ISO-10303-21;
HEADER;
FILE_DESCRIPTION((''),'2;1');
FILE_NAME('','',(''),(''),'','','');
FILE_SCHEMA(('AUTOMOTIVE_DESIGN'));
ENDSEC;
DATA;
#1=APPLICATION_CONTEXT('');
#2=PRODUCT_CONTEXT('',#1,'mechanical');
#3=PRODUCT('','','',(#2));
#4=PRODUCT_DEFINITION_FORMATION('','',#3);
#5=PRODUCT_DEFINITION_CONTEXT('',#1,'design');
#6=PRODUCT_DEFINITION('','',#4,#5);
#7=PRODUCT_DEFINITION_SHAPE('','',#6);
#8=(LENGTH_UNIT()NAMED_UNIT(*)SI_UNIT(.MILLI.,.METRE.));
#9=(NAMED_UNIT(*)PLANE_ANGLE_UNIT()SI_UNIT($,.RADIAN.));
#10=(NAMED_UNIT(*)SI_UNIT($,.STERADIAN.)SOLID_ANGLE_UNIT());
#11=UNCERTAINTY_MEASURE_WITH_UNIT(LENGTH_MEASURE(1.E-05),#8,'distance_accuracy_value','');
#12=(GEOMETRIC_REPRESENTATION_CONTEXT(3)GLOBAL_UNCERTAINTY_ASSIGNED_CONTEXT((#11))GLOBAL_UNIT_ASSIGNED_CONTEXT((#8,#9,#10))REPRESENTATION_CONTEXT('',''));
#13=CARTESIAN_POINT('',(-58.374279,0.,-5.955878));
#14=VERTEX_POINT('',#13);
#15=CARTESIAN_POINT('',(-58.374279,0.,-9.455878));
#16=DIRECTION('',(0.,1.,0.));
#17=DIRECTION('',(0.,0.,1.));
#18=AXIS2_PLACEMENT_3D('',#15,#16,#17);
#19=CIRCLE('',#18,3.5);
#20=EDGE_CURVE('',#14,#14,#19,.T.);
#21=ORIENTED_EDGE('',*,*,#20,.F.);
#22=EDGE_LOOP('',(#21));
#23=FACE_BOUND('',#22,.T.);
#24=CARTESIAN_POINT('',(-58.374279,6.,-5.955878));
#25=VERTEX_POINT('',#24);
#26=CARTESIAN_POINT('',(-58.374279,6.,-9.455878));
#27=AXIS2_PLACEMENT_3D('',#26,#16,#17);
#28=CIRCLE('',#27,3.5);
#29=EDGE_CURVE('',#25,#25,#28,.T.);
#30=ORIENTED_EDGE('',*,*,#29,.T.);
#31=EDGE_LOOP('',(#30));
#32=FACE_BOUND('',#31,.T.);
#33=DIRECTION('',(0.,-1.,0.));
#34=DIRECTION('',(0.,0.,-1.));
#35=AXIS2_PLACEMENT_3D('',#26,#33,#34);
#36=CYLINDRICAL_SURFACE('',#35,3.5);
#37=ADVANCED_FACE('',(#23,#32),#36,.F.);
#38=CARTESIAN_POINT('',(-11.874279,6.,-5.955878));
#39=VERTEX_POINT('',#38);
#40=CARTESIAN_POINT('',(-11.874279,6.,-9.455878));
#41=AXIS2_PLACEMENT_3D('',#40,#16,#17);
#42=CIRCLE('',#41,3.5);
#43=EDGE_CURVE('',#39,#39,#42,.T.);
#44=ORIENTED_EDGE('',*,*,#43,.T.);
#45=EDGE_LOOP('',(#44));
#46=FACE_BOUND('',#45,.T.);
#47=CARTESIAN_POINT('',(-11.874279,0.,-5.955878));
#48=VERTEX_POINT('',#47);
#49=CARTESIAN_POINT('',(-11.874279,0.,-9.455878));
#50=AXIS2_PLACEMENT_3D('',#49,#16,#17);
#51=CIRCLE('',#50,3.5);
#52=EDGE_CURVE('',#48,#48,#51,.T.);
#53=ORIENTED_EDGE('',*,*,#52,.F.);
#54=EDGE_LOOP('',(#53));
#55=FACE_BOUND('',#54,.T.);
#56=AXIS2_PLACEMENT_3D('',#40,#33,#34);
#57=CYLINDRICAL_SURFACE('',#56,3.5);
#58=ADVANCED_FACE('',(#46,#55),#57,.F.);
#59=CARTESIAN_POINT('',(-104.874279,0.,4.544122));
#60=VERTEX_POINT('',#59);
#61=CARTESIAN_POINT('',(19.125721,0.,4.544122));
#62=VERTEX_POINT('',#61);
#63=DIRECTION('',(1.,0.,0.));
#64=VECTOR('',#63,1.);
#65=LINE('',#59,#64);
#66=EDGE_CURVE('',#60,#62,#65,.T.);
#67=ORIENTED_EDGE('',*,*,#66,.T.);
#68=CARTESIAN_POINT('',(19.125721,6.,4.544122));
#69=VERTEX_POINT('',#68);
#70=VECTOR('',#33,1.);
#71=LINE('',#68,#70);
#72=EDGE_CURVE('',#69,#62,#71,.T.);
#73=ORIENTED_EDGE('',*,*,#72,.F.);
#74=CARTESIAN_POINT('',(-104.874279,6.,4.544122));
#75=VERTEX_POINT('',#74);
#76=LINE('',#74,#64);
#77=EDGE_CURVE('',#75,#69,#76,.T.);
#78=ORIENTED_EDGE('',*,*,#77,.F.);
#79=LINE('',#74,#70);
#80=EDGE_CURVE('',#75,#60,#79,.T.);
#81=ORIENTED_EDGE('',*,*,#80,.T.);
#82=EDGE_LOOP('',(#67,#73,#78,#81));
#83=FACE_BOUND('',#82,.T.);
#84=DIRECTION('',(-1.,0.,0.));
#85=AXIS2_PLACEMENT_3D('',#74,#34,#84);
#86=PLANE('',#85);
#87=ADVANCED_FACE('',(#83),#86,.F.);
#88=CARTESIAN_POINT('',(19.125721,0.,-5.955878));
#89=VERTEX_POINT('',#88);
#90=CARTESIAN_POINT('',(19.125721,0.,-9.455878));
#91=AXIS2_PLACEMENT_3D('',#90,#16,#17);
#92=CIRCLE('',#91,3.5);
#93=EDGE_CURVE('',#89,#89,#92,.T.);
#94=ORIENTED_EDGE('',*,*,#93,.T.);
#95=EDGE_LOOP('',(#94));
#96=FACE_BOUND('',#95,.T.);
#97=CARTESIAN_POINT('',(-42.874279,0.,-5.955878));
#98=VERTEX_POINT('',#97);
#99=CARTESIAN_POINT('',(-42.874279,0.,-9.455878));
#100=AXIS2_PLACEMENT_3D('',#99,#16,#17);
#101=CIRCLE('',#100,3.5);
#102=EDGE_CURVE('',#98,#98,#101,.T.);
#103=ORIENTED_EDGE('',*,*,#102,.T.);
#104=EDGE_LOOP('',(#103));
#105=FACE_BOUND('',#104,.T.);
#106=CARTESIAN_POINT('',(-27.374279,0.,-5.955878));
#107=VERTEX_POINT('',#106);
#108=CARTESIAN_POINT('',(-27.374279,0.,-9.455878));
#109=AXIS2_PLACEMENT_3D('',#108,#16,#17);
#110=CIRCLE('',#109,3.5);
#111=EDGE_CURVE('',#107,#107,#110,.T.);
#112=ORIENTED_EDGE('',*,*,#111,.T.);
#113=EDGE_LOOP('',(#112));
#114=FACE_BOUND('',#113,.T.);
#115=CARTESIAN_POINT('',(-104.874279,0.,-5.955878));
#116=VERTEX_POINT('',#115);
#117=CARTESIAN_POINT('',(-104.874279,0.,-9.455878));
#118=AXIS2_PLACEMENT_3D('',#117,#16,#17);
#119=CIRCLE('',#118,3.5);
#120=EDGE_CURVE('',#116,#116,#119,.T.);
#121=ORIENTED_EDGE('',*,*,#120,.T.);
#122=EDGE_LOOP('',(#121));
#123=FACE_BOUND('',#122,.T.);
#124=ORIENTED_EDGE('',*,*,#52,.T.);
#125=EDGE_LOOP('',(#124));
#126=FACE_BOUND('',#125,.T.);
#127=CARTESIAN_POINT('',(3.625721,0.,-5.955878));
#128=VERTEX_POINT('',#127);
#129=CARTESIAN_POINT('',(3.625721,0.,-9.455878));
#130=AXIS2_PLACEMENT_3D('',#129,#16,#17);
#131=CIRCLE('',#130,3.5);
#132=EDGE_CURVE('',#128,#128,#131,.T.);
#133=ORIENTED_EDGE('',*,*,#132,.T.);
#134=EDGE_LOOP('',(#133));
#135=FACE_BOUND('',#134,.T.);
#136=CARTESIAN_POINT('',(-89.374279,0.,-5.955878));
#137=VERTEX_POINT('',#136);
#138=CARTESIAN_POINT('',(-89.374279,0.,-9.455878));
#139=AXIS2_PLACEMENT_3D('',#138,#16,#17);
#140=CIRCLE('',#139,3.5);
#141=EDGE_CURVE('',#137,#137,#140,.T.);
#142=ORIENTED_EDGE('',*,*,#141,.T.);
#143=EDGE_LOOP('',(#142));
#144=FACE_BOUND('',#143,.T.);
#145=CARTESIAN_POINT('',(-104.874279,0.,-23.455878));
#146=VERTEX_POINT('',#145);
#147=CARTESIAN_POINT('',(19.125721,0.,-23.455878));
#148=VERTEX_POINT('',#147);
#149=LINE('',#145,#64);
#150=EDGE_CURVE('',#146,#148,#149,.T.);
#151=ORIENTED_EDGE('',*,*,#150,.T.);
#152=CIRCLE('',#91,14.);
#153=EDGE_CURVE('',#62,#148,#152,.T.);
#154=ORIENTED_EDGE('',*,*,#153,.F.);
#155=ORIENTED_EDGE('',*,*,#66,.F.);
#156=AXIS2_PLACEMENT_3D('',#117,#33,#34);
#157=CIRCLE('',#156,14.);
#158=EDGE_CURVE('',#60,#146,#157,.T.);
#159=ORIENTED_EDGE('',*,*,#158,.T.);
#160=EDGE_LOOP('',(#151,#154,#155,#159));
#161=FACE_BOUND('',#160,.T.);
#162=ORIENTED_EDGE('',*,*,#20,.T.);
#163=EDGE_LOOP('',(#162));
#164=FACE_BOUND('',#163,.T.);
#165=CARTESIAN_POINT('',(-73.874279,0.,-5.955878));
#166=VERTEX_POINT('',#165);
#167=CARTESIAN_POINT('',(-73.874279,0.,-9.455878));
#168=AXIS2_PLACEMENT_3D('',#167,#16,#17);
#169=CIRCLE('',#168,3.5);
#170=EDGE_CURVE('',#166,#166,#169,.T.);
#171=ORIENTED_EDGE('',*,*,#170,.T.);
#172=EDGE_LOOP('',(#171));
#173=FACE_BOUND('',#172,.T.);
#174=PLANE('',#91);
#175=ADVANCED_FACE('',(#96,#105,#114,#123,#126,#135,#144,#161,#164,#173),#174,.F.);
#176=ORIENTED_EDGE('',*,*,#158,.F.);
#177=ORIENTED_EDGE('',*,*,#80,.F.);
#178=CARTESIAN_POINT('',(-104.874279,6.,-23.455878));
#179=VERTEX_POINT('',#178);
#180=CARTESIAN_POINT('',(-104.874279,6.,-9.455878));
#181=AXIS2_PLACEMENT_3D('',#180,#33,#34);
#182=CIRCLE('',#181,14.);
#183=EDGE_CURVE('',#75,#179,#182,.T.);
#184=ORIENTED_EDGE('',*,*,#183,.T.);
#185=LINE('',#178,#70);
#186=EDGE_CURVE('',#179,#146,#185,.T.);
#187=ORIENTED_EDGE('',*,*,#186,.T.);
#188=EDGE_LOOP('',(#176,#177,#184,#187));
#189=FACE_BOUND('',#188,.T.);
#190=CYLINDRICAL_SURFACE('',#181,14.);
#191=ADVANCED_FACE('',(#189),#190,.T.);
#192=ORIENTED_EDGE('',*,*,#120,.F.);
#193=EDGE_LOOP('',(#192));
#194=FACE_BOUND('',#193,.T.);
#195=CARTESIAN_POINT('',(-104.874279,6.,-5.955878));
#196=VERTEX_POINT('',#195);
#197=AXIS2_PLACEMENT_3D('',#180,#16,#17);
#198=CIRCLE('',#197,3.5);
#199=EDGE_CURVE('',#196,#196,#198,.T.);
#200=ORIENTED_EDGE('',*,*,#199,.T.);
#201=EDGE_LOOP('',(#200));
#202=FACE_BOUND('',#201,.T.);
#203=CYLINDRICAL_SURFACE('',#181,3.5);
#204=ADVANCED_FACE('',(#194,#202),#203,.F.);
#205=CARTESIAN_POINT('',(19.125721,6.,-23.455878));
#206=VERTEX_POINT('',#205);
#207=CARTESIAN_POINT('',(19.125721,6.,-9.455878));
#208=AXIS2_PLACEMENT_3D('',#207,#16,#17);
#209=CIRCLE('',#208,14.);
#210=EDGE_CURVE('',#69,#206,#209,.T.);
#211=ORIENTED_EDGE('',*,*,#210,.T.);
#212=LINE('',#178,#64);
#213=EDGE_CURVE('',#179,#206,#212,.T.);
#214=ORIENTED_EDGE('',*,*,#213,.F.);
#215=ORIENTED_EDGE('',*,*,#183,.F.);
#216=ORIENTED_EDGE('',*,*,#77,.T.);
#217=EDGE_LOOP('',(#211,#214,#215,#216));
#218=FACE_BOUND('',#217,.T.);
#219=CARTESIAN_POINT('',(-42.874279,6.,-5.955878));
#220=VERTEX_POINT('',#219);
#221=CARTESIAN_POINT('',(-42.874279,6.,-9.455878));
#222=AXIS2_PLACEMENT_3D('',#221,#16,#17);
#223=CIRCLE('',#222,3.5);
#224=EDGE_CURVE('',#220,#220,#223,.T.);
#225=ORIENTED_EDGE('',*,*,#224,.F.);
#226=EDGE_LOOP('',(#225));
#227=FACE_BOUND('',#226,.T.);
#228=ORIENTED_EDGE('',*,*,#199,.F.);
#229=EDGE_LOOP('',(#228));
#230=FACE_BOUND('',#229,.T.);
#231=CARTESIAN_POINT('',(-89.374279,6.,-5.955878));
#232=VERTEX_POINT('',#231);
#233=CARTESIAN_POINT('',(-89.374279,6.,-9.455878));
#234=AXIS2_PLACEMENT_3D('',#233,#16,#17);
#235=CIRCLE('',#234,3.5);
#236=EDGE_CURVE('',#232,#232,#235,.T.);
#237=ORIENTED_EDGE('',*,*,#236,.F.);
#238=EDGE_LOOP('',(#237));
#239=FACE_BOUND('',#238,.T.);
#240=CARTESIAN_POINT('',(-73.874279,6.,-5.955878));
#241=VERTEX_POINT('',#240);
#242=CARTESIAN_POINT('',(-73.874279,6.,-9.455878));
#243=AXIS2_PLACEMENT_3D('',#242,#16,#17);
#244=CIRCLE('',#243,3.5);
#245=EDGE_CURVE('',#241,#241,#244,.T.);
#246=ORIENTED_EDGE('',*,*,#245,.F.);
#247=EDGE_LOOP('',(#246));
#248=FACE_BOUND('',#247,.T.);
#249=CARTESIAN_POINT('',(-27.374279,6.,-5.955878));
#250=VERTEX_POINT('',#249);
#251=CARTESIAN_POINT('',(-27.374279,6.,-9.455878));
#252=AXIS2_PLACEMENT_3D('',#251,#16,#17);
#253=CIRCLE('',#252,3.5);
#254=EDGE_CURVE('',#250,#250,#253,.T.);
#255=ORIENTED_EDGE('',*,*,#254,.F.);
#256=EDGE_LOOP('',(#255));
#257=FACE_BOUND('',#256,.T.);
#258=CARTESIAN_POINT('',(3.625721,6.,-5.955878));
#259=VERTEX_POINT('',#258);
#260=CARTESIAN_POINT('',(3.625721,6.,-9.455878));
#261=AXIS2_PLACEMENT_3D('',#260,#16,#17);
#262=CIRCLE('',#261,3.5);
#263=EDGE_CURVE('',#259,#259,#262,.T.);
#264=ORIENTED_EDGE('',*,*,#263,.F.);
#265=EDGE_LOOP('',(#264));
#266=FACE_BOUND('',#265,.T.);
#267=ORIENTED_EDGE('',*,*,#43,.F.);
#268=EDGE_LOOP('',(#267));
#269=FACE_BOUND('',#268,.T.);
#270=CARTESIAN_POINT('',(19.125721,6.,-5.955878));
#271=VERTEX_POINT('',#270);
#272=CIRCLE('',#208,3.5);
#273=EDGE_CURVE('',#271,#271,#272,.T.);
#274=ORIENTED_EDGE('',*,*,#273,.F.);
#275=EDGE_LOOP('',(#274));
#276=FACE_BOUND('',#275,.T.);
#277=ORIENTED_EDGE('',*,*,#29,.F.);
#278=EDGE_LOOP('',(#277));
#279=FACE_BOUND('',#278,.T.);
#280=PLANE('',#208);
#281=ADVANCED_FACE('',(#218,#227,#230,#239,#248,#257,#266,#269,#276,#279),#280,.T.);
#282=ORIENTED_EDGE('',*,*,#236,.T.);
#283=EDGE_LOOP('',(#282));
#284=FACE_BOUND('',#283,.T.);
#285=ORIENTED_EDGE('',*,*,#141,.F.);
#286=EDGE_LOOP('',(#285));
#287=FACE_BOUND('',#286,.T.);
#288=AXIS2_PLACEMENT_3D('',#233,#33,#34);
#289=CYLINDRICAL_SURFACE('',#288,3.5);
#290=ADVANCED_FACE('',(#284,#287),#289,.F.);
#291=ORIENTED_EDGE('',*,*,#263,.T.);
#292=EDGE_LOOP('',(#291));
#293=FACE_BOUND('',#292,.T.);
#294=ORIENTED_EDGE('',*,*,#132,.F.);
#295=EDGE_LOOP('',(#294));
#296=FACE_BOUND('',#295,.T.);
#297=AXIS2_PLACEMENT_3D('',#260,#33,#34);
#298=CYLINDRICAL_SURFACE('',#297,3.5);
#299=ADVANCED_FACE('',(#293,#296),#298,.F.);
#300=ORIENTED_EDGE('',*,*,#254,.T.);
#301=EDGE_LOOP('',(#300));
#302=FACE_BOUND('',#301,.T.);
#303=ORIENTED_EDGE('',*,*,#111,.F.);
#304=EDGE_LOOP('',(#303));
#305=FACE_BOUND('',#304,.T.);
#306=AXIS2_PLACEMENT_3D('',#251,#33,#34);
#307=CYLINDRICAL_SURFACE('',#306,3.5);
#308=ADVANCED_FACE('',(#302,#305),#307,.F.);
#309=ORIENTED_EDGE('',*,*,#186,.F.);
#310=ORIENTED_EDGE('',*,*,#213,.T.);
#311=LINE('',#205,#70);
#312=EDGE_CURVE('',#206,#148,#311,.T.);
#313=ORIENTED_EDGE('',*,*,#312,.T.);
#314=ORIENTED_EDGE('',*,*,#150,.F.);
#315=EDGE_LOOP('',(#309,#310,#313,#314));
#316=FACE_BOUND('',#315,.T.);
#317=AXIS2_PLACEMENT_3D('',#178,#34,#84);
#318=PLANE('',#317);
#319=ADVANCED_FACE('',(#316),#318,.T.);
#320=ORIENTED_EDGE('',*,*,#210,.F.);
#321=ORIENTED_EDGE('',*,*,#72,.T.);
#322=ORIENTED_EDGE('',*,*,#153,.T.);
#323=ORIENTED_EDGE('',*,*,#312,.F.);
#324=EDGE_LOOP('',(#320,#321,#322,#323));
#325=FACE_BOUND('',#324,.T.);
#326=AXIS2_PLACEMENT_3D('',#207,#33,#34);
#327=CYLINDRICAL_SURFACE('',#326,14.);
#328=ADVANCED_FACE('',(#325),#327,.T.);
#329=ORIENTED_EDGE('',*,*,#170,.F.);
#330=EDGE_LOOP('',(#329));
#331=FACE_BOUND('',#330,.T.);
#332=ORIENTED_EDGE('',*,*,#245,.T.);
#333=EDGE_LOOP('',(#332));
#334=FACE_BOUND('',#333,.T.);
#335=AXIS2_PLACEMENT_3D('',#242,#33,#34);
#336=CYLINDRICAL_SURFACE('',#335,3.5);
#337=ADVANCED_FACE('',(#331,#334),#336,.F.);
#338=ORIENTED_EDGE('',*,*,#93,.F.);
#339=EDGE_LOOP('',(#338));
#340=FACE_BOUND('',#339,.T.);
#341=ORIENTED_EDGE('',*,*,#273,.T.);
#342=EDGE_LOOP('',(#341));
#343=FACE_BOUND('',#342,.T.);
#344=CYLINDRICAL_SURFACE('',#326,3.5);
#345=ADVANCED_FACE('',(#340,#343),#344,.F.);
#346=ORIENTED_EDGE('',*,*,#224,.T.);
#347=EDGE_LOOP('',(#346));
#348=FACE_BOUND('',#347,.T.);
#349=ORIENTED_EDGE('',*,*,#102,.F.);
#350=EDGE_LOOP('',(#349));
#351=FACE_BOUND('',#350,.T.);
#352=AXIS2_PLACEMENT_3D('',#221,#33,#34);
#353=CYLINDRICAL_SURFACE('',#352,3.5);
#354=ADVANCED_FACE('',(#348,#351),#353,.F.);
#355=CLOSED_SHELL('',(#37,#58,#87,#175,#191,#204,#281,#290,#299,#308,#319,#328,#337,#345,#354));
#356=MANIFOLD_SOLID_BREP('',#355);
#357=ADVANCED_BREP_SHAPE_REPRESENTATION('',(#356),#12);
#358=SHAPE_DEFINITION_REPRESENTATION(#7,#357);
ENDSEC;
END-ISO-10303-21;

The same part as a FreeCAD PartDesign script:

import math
import FreeCAD as App
import Part
import Sketcher

doc = App.newDocument("Part")
body = doc.addObject("PartDesign::Body", "Body")

# Sketch on XZ plane
sketch1 = body.newObject("Sketcher::SketchObject", "Sketch")
sketch1.AttachmentSupport = (doc.getObject("XZ_Plane"), [""])
sketch1.MapMode = "FlatFace"
sketch1.addGeometry([
    Part.LineSegment(App.Vector(19.1, -23.5, 0), App.Vector(-104.9, -23.5, 0)),  # 0
    Part.ArcOfCircle(Part.Circle(App.Vector(-104.9, -9.5, 0), App.Vector(0, 0, 1), 14), math.radians(90), math.radians(270)),  # 1
    Part.LineSegment(App.Vector(-104.9, 4.5, 0), App.Vector(19.1, 4.5, 0)),  # 2
    Part.ArcOfCircle(Part.Circle(App.Vector(19.1, -9.5, 0), App.Vector(0, 0, 1), 14), math.radians(-90), math.radians(90)),  # 3
    Part.Circle(App.Vector(19.1, -9.5, 0), App.Vector(0, 0, 1), 3.5),  # 4
    Part.Circle(App.Vector(3.6, -9.5, 0), App.Vector(0, 0, 1), 3.5),  # 5
    Part.Circle(App.Vector(-11.9, -9.5, 0), App.Vector(0, 0, 1), 3.5),  # 6
    Part.Circle(App.Vector(-27.4, -9.5, 0), App.Vector(0, 0, 1), 3.5),  # 7
    Part.Circle(App.Vector(-42.9, -9.5, 0), App.Vector(0, 0, 1), 3.5),  # 8
    Part.Circle(App.Vector(-58.4, -9.5, 0), App.Vector(0, 0, 1), 3.5),  # 9
    Part.Circle(App.Vector(-73.9, -9.5, 0), App.Vector(0, 0, 1), 3.5),  # 10
    Part.Circle(App.Vector(-89.4, -9.5, 0), App.Vector(0, 0, 1), 3.5),  # 11
    Part.Circle(App.Vector(-104.9, -9.5, 0), App.Vector(0, 0, 1), 3.5),  # 12
], False)
sketch1.addConstraint([
    Sketcher.Constraint("Tangent", 0, 2, 1, 2),
    Sketcher.Constraint("Tangent", 1, 1, 2, 1),
    Sketcher.Constraint("Tangent", 2, 2, 3, 2),
    Sketcher.Constraint("Tangent", 3, 1, 0, 1),
    Sketcher.Constraint("Horizontal", 0),
    Sketcher.Constraint("Horizontal", 2),
    Sketcher.Constraint("Coincident", 4, 3, 3, 3),
    Sketcher.Constraint("Coincident", 12, 3, 1, 3),
    Sketcher.Constraint("Equal", 4, 5),
    Sketcher.Constraint("Equal", 5, 6),
    Sketcher.Constraint("Equal", 6, 7),
    Sketcher.Constraint("Equal", 7, 8),
    Sketcher.Constraint("Equal", 8, 9),
    Sketcher.Constraint("Equal", 9, 10),
    Sketcher.Constraint("Equal", 10, 11),
    Sketcher.Constraint("Equal", 11, 12),
    Sketcher.Constraint("Horizontal", 4, 3, 5, 3),
    Sketcher.Constraint("Horizontal", 5, 3, 6, 3),
    Sketcher.Constraint("Horizontal", 6, 3, 7, 3),
    Sketcher.Constraint("Horizontal", 7, 3, 8, 3),
    Sketcher.Constraint("Horizontal", 8, 3, 9, 3),
    Sketcher.Constraint("Horizontal", 9, 3, 10, 3),
    Sketcher.Constraint("Horizontal", 10, 3, 11, 3),
    Sketcher.Constraint("Diameter", 4, 7.0),
    Sketcher.Constraint("Radius", 1, 14.0),
    Sketcher.Constraint("DistanceX", 0, 2, 0, 1, 124.0),
    Sketcher.Constraint("DistanceX", 6, 3, 3, 3, 31.0),
    Sketcher.Constraint("DistanceX", 7, 3, 5, 3, 31.0),
    Sketcher.Constraint("DistanceX", 8, 3, 6, 3, 31.0),
    Sketcher.Constraint("DistanceX", 9, 3, 7, 3, 31.0),
    Sketcher.Constraint("DistanceX", 1, 3, 10, 3, 31.0),
    Sketcher.Constraint("DistanceX", 11, 3, 9, 3, 31.0),
    Sketcher.Constraint("DistanceX", 5, 3, 3, 3, 15.5),
    Sketcher.Constraint("DistanceX", 1, 3, -1, 1, 104.874279),
    Sketcher.Constraint("DistanceY", 1, 3, -1, 1, 9.455878),
])
pad1 = body.newObject("PartDesign::Pad", "Pad")
pad1.Profile = sketch1
pad1.Length = 6
pad1.Reversed = True

doc.recompute()
